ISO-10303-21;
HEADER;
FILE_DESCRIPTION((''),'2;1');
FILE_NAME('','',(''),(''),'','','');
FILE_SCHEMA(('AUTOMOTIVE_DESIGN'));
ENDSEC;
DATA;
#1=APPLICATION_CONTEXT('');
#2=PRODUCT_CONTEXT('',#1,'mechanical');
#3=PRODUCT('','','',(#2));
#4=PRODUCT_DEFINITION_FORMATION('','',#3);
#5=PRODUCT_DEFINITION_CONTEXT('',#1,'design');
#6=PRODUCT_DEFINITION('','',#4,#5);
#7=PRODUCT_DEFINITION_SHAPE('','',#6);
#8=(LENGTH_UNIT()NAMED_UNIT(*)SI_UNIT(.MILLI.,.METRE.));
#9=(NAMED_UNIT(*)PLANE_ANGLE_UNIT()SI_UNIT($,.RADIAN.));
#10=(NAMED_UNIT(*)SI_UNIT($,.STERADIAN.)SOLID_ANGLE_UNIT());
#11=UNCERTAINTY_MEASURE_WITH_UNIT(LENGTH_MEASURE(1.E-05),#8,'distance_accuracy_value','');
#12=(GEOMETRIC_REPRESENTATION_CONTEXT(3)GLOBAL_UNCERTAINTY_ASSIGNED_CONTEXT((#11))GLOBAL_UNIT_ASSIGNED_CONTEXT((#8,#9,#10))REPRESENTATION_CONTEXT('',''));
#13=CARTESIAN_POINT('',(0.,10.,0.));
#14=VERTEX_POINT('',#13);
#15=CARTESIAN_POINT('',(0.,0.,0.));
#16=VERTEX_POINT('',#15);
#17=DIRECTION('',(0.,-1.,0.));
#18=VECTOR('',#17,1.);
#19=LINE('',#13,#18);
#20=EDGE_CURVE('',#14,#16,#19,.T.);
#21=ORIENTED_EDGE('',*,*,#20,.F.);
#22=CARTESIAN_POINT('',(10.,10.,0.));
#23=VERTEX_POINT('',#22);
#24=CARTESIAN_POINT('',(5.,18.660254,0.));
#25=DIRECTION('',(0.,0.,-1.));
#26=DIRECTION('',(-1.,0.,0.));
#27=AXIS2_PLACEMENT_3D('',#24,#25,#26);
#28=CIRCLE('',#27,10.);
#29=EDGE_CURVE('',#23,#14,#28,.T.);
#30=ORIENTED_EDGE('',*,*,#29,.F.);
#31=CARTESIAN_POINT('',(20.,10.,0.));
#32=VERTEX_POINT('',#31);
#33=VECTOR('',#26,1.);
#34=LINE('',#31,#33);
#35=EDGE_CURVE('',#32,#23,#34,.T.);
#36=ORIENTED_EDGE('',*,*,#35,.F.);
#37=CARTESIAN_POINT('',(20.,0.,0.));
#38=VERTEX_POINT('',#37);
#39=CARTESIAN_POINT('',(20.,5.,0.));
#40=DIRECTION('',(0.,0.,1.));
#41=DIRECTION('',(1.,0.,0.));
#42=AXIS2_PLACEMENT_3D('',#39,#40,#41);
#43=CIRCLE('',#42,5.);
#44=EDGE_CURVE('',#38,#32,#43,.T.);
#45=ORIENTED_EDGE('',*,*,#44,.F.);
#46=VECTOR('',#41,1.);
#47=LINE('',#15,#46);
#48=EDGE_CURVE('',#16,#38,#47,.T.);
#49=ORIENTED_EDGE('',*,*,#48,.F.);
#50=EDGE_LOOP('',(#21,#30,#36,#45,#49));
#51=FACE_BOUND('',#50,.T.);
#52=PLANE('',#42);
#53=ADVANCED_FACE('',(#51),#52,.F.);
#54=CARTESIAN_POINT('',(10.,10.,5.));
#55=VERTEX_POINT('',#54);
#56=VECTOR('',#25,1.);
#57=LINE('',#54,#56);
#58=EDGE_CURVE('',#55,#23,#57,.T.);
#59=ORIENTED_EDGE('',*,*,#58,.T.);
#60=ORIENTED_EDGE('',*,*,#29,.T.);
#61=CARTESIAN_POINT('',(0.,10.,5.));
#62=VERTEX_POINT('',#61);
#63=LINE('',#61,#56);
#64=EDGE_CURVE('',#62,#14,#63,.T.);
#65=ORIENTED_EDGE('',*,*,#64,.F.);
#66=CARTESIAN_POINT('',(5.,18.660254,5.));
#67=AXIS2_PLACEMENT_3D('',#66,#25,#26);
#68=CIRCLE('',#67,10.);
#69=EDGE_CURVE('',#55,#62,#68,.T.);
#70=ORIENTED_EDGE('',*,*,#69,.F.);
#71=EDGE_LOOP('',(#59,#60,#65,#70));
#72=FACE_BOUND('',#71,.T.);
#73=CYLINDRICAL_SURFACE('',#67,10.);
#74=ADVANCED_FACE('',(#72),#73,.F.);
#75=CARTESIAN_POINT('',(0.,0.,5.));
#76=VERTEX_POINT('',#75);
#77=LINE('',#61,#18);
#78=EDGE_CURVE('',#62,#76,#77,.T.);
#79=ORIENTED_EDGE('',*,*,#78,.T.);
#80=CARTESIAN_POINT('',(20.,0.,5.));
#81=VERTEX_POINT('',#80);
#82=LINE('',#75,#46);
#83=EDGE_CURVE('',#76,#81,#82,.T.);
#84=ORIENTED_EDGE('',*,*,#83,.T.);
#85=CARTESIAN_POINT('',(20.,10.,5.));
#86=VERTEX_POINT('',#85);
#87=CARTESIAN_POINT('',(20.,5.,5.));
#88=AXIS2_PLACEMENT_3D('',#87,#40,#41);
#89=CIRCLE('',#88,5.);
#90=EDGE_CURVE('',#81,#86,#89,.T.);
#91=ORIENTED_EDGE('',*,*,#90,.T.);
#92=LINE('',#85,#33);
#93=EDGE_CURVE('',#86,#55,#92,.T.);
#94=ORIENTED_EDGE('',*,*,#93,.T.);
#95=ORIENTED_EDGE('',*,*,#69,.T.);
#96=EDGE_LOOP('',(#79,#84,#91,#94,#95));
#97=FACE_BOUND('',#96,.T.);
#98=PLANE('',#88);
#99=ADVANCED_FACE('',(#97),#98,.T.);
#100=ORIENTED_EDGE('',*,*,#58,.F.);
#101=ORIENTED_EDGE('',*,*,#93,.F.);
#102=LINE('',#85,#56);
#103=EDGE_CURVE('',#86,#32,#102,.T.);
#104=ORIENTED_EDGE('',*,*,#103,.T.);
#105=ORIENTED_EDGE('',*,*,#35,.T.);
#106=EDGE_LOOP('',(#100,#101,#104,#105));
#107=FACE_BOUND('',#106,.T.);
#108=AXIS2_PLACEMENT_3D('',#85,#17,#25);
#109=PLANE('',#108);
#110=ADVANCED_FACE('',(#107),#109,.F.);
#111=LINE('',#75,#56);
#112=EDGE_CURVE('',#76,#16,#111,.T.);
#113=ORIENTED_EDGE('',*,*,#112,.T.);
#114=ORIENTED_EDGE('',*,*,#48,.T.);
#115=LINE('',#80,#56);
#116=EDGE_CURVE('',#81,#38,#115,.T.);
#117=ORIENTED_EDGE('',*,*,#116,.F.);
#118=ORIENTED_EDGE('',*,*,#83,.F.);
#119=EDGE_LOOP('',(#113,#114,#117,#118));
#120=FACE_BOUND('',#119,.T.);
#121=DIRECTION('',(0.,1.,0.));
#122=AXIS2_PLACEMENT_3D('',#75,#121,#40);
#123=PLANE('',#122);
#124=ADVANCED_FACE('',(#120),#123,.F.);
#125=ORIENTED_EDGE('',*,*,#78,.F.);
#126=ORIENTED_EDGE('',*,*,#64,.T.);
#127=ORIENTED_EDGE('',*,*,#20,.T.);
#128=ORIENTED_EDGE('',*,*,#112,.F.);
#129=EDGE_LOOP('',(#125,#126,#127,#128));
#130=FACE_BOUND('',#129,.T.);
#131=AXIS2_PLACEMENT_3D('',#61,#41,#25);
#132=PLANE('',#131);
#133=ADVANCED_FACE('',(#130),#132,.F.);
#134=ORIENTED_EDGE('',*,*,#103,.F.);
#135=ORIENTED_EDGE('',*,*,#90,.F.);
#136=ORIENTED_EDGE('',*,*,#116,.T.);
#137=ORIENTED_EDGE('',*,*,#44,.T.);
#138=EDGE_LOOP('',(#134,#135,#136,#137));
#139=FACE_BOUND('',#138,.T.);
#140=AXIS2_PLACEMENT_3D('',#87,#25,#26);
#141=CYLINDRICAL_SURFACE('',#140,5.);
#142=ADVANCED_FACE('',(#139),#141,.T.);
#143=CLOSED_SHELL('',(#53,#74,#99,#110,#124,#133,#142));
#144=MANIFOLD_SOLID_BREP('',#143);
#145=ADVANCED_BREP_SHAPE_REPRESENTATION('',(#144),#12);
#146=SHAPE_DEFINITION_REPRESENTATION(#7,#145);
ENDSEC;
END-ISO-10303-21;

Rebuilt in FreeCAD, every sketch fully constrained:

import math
import FreeCAD as App
import Part
import Sketcher

V = App.Vector
Q = App.Units.Quantity

doc = App.newDocument("Part")
body = doc.addObject("PartDesign::Body", "Body")

sketch1 = doc.addObject("Sketcher::SketchObject", "Sketch")
body.addObject(sketch1)
sketch1.AttachmentSupport = (doc.XY_Plane, [""])
sketch1.MapMode = "FlatFace"
sketch1.addGeometry([
    Part.LineSegment(V(0, 0, 0), V(20, 0, 0)),
    Part.ArcOfCircle(Part.Circle(V(20, 5, 0), V(0, 0, 1), 5), math.radians(-90), math.radians(90)),
    Part.LineSegment(V(20, 10, 0), V(10, 10, 0)),
    Part.ArcOfCircle(Part.Circle(V(5, 18.660254, 0), V(0, 0, 1), 10), math.radians(-120), math.radians(-60)),
    Part.LineSegment(V(0, 10, 0), V(0, 0, 0)),
], False)
sketch1.addConstraint([
    Sketcher.Constraint("Tangent", 0, 2, 1, 1),
    Sketcher.Constraint("Tangent", 1, 2, 2, 1),
    Sketcher.Constraint("Coincident", 2, 2, 3, 2),
    Sketcher.Constraint("Coincident", 3, 1, 4, 1),
    Sketcher.Constraint("Coincident", 4, 2, 0, 1),
    Sketcher.Constraint("Horizontal", 0),
    Sketcher.Constraint("Horizontal", 2),
    Sketcher.Constraint("Vertical", 4),
    Sketcher.Constraint("Coincident", 4, 2, -1, 1),
    Sketcher.Constraint("Horizontal", 2, 2, 3, 1),
    Sketcher.Constraint("Equal", 2, 4),
    Sketcher.Constraint("Radius", 1, Q("5 mm")),
    Sketcher.Constraint("Radius", 3, Q("10 mm")),
    Sketcher.Constraint("DistanceX", 0, 1, 0, 2, Q("20 mm")),
])
pad1 = doc.addObject("PartDesign::Pad", "Pad")
body.addObject(pad1)
pad1.Profile = sketch1
pad1.Length = 5

doc.recompute()
